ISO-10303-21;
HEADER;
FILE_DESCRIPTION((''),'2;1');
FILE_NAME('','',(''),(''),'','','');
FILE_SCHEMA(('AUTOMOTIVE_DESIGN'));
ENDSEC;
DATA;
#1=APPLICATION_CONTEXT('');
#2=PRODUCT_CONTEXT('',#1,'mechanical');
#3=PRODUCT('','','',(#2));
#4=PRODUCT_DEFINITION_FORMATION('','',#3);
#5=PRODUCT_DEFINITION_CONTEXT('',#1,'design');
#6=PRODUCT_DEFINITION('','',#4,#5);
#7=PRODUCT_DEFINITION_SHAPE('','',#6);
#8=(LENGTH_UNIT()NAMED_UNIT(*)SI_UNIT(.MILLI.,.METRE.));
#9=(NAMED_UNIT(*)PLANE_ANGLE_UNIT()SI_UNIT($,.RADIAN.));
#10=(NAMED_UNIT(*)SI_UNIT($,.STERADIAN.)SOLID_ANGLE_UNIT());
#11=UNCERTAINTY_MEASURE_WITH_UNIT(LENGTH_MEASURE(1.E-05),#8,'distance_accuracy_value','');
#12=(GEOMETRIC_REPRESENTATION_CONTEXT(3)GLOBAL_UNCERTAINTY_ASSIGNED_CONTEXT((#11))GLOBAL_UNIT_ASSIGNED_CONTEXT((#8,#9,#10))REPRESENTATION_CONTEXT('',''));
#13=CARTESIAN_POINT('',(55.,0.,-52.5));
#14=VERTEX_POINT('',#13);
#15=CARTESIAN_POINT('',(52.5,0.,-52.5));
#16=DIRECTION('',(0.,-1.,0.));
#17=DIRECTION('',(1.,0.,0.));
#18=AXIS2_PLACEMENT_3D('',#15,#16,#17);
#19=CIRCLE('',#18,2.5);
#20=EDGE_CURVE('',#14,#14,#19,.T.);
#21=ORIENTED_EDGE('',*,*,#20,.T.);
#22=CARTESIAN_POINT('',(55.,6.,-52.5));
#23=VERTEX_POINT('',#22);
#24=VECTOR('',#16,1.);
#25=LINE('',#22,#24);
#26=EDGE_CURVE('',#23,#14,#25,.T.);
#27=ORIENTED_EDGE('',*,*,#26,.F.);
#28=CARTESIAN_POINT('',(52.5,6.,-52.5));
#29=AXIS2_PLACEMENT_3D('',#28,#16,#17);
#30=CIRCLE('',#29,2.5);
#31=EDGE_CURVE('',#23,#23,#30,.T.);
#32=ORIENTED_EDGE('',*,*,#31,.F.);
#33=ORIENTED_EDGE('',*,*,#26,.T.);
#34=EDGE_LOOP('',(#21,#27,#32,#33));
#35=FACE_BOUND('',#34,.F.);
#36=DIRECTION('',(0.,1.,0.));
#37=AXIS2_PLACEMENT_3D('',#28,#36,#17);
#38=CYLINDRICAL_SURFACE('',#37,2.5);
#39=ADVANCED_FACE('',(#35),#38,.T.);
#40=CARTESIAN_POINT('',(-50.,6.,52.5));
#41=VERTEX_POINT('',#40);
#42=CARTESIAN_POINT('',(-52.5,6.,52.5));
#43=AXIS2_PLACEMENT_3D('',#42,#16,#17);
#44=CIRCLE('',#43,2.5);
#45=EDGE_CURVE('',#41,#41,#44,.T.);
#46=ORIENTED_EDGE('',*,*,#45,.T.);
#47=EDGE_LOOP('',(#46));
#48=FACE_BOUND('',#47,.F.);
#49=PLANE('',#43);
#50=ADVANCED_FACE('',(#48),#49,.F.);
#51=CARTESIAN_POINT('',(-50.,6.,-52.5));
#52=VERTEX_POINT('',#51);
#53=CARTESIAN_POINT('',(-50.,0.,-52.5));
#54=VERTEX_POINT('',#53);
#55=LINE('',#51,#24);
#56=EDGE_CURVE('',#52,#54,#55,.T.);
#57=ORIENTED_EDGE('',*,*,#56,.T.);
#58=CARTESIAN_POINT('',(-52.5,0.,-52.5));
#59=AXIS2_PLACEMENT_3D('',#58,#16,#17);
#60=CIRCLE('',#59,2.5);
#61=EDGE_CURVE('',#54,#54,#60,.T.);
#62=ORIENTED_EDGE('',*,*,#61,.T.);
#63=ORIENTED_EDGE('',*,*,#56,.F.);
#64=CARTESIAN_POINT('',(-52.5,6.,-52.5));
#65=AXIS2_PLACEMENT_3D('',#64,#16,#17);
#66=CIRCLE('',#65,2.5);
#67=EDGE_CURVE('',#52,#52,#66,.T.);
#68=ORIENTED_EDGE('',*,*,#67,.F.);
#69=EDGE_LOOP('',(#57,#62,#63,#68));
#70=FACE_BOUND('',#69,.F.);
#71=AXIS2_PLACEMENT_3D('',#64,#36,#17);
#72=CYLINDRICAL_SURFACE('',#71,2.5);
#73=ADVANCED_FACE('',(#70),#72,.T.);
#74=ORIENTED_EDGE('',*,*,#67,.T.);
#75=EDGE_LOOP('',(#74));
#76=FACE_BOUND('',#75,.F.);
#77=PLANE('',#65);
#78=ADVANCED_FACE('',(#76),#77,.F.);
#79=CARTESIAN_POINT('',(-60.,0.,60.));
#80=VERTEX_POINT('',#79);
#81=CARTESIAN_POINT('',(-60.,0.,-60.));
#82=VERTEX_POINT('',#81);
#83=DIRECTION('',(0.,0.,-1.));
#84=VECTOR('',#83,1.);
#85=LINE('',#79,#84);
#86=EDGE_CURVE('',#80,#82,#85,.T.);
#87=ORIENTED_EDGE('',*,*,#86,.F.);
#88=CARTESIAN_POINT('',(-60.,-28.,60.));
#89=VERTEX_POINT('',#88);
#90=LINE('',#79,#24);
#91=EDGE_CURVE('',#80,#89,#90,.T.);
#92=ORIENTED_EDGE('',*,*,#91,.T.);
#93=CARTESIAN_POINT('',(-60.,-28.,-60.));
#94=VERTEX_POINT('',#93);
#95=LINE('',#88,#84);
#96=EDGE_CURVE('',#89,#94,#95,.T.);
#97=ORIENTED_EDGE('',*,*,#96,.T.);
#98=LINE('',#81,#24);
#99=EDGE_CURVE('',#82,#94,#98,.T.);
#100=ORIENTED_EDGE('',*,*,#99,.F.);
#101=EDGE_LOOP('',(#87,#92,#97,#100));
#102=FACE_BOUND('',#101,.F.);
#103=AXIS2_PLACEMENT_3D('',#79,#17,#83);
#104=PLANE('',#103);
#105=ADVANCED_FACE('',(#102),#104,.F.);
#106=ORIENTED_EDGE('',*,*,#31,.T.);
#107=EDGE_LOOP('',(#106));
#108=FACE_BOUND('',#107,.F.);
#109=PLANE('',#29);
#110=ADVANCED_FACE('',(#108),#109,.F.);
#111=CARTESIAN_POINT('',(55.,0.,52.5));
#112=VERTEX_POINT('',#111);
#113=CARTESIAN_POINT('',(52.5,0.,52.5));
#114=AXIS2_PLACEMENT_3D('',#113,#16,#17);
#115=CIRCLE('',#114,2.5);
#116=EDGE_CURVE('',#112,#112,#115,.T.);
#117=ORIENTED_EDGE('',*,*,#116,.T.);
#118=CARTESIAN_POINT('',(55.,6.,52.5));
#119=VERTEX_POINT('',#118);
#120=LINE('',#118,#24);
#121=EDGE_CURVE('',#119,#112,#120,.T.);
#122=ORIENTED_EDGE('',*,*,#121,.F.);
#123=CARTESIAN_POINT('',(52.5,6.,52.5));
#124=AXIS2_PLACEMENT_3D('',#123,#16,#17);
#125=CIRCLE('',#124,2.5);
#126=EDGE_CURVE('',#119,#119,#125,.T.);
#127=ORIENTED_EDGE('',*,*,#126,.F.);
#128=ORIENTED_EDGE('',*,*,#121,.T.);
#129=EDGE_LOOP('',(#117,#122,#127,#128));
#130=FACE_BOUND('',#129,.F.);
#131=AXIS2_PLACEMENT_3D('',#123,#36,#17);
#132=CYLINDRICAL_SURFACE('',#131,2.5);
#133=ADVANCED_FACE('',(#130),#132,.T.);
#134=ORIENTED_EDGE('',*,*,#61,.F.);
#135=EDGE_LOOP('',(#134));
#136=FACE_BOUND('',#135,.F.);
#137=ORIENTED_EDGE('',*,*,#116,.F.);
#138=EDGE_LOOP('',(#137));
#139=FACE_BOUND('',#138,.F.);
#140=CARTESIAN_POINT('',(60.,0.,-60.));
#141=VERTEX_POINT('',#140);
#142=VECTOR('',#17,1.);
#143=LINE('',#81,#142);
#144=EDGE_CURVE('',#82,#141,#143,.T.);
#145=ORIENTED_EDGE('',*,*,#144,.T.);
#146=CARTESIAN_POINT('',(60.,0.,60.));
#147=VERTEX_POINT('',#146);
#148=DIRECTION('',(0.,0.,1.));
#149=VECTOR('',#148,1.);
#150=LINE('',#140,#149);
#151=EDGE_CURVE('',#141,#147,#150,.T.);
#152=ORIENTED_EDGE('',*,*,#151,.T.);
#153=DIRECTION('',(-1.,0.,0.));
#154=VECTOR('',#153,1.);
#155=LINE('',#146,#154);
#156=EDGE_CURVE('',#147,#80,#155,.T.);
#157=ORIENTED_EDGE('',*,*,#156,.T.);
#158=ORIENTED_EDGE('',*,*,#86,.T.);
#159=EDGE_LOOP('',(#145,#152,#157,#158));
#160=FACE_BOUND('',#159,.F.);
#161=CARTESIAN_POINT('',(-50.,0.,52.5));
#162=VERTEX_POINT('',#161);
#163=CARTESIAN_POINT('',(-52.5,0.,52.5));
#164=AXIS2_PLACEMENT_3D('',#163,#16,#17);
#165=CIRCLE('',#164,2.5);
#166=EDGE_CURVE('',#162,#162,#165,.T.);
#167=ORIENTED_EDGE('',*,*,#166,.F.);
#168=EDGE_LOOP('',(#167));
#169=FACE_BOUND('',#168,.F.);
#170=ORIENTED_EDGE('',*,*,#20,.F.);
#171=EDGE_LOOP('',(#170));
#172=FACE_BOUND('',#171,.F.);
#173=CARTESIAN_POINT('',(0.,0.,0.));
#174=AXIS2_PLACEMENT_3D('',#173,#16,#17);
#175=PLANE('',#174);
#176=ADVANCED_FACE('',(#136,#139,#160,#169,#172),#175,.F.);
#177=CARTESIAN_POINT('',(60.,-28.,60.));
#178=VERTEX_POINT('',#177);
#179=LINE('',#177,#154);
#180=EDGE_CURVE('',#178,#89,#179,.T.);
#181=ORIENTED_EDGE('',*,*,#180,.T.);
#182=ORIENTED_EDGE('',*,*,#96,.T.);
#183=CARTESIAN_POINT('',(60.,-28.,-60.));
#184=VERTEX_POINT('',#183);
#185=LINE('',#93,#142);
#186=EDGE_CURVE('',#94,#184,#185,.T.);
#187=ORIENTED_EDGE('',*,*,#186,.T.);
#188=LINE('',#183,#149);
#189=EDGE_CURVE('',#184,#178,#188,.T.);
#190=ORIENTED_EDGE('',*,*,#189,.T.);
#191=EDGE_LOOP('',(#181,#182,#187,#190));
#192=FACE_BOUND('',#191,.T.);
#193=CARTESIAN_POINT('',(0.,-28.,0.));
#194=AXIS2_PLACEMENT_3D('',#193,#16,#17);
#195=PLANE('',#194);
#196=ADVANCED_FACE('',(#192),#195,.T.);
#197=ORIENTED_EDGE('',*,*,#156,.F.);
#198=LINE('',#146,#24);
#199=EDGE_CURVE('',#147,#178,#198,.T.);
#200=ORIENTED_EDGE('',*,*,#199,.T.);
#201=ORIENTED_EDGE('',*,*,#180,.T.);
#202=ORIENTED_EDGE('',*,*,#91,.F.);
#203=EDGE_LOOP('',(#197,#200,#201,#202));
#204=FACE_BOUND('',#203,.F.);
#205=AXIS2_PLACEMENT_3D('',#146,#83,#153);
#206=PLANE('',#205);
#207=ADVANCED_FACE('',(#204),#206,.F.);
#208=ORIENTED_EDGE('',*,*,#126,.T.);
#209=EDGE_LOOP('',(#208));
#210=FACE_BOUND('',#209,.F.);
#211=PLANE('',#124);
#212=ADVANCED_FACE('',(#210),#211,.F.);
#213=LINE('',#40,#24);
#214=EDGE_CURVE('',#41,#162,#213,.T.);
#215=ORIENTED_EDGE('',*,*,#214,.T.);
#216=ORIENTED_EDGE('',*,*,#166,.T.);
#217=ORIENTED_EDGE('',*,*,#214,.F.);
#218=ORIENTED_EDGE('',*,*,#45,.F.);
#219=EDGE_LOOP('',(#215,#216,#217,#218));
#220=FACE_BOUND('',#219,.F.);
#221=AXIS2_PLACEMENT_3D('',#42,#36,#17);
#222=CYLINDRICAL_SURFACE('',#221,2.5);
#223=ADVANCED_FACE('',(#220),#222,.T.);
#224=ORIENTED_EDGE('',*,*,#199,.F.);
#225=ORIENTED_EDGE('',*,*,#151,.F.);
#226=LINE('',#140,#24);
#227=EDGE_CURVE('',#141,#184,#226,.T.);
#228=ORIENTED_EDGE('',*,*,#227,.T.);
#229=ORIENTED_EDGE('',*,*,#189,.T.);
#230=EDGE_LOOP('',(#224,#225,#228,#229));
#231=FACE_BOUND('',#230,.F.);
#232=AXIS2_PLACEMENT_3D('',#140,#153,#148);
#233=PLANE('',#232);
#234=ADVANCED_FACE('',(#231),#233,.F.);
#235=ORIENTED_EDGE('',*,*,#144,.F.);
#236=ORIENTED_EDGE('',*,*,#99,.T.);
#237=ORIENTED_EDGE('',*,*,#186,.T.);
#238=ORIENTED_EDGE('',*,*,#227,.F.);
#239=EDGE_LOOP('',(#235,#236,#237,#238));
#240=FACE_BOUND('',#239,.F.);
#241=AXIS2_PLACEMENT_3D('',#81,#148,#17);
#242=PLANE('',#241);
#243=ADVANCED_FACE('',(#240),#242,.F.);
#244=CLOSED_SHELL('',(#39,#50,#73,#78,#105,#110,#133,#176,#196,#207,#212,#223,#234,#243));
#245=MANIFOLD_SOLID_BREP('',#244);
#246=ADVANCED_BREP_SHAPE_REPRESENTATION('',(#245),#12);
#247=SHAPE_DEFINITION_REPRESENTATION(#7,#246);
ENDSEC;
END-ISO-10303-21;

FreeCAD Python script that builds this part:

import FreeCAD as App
import Part
import Sketcher
Q = App.Units.Quantity

doc = App.newDocument("Part")
body = doc.addObject("PartDesign::Body", "Body")

# Sketch on XZ plane
sketch1 = body.newObject("Sketcher::SketchObject", "Sketch")
sketch1.AttachmentSupport = (doc.getObject("XZ_Plane"), [""])
sketch1.MapMode = "FlatFace"
sketch1.addGeometry(Part.LineSegment(App.Vector(-60, -60, 0), App.Vector(60, -60, 0)), False)
sketch1.addGeometry(Part.LineSegment(App.Vector(60, -60, 0), App.Vector(60, 60, 0)), False)
sketch1.addGeometry(Part.LineSegment(App.Vector(60, 60, 0), App.Vector(-60, 60, 0)), False)
sketch1.addGeometry(Part.LineSegment(App.Vector(-60, 60, 0), App.Vector(-60, -60, 0)), False)
sketch1.addConstraint(Sketcher.Constraint("Coincident", 0, 2, 1, 1))
sketch1.addConstraint(Sketcher.Constraint("Coincident", 1, 2, 2, 1))
sketch1.addConstraint(Sketcher.Constraint("Coincident", 2, 2, 3, 1))
sketch1.addConstraint(Sketcher.Constraint("Coincident", 3, 2, 0, 1))
sketch1.addConstraint(Sketcher.Constraint("Horizontal", 0))
sketch1.addConstraint(Sketcher.Constraint("Vertical", 1))
sketch1.addConstraint(Sketcher.Constraint("Horizontal", 2))
sketch1.addConstraint(Sketcher.Constraint("Vertical", 3))
sketch1.addConstraint(Sketcher.Constraint("Symmetric", 0, 2, 2, 2, -1, 1))
sketch1.addConstraint(Sketcher.Constraint("Equal", 2, 1))
sketch1.addConstraint(Sketcher.Constraint("DistanceX", 0, 1, 0, 2, Q("120 mm")))
pad1 = body.newObject("PartDesign::Pad", "Pad")
pad1.Profile = sketch1
pad1.Length = 28

# Sketch on XZ plane
sketch2 = body.newObject("Sketcher::SketchObject", "Sketch001")
sketch2.AttachmentSupport = (doc.getObject("XZ_Plane"), [""])
sketch2.MapMode = "FlatFace"
sketch2.AttachmentOffset = App.Placement(App.Vector(0, 0, -6), App.Rotation())
sketch2.addGeometry(Part.Circle(App.Vector(-52.5, 52.5, 0), App.Vector(0, 0, 1), 2.5), False)
sketch2.addConstraint(Sketcher.Constraint("Diameter", 0, Q("5 mm")))
sketch2.addConstraint(Sketcher.Constraint("DistanceX", 0, 3, -1, 1, Q("52.5 mm")))
sketch2.addConstraint(Sketcher.Constraint("DistanceY", -1, 1, 0, 3, Q("52.5 mm")))
pad2 = body.newObject("PartDesign::Pad", "Pad001")
pad2.Profile = sketch2
pad2.Length = 6

# Sketch on XZ plane
sketch3 = body.newObject("Sketcher::SketchObject", "Sketch002")
sketch3.AttachmentSupport = (doc.getObject("XZ_Plane"), [""])
sketch3.MapMode = "FlatFace"
sketch3.AttachmentOffset = App.Placement(App.Vector(0, 0, -6), App.Rotation())
sketch3.addGeometry(Part.Circle(App.Vector(52.5, 52.5, 0), App.Vector(0, 0, 1), 2.5), False)
sketch3.addConstraint(Sketcher.Constraint("Diameter", 0, Q("5 mm")))
sketch3.addConstraint(Sketcher.Constraint("DistanceX", -1, 1, 0, 3, Q("52.5 mm")))
sketch3.addConstraint(Sketcher.Constraint("DistanceY", -1, 1, 0, 3, Q("52.5 mm")))
pad3 = body.newObject("PartDesign::Pad", "Pad002")
pad3.Profile = sketch3
pad3.Length = 6

# Sketch on XZ plane
sketch4 = body.newObject("Sketcher::SketchObject", "Sketch003")
sketch4.AttachmentSupport = (doc.getObject("XZ_Plane"), [""])
sketch4.MapMode = "FlatFace"
sketch4.AttachmentOffset = App.Placement(App.Vector(0, 0, -6), App.Rotation())
sketch4.addGeometry(Part.Circle(App.Vector(52.5, -52.5, 0), App.Vector(0, 0, 1), 2.5), False)
sketch4.addConstraint(Sketcher.Constraint("Diameter", 0, Q("5 mm")))
sketch4.addConstraint(Sketcher.Constraint("DistanceX", -1, 1, 0, 3, Q("52.5 mm")))
sketch4.addConstraint(Sketcher.Constraint("DistanceY", 0, 3, -1, 1, Q("52.5 mm")))
pad4 = body.newObject("PartDesign::Pad", "Pad003")
pad4.Profile = sketch4
pad4.Length = 6

# Sketch on XZ plane
sketch5 = body.newObject("Sketcher::SketchObject", "Sketch004")
sketch5.AttachmentSupport = (doc.getObject("XZ_Plane"), [""])
sketch5.MapMode = "FlatFace"
sketch5.AttachmentOffset = App.Placement(App.Vector(0, 0, -6), App.Rotation())
sketch5.addGeometry(Part.Circle(App.Vector(-52.5, -52.5, 0), App.Vector(0, 0, 1), 2.5), False)
sketch5.addConstraint(Sketcher.Constraint("Diameter", 0, Q("5 mm")))
sketch5.addConstraint(Sketcher.Constraint("DistanceX", 0, 3, -1, 1, Q("52.5 mm")))
sketch5.addConstraint(Sketcher.Constraint("DistanceY", 0, 3, -1, 1, Q("52.5 mm")))
pad5 = body.newObject("PartDesign::Pad", "Pad004")
pad5.Profile = sketch5
pad5.Length = 6

doc.recompute()
